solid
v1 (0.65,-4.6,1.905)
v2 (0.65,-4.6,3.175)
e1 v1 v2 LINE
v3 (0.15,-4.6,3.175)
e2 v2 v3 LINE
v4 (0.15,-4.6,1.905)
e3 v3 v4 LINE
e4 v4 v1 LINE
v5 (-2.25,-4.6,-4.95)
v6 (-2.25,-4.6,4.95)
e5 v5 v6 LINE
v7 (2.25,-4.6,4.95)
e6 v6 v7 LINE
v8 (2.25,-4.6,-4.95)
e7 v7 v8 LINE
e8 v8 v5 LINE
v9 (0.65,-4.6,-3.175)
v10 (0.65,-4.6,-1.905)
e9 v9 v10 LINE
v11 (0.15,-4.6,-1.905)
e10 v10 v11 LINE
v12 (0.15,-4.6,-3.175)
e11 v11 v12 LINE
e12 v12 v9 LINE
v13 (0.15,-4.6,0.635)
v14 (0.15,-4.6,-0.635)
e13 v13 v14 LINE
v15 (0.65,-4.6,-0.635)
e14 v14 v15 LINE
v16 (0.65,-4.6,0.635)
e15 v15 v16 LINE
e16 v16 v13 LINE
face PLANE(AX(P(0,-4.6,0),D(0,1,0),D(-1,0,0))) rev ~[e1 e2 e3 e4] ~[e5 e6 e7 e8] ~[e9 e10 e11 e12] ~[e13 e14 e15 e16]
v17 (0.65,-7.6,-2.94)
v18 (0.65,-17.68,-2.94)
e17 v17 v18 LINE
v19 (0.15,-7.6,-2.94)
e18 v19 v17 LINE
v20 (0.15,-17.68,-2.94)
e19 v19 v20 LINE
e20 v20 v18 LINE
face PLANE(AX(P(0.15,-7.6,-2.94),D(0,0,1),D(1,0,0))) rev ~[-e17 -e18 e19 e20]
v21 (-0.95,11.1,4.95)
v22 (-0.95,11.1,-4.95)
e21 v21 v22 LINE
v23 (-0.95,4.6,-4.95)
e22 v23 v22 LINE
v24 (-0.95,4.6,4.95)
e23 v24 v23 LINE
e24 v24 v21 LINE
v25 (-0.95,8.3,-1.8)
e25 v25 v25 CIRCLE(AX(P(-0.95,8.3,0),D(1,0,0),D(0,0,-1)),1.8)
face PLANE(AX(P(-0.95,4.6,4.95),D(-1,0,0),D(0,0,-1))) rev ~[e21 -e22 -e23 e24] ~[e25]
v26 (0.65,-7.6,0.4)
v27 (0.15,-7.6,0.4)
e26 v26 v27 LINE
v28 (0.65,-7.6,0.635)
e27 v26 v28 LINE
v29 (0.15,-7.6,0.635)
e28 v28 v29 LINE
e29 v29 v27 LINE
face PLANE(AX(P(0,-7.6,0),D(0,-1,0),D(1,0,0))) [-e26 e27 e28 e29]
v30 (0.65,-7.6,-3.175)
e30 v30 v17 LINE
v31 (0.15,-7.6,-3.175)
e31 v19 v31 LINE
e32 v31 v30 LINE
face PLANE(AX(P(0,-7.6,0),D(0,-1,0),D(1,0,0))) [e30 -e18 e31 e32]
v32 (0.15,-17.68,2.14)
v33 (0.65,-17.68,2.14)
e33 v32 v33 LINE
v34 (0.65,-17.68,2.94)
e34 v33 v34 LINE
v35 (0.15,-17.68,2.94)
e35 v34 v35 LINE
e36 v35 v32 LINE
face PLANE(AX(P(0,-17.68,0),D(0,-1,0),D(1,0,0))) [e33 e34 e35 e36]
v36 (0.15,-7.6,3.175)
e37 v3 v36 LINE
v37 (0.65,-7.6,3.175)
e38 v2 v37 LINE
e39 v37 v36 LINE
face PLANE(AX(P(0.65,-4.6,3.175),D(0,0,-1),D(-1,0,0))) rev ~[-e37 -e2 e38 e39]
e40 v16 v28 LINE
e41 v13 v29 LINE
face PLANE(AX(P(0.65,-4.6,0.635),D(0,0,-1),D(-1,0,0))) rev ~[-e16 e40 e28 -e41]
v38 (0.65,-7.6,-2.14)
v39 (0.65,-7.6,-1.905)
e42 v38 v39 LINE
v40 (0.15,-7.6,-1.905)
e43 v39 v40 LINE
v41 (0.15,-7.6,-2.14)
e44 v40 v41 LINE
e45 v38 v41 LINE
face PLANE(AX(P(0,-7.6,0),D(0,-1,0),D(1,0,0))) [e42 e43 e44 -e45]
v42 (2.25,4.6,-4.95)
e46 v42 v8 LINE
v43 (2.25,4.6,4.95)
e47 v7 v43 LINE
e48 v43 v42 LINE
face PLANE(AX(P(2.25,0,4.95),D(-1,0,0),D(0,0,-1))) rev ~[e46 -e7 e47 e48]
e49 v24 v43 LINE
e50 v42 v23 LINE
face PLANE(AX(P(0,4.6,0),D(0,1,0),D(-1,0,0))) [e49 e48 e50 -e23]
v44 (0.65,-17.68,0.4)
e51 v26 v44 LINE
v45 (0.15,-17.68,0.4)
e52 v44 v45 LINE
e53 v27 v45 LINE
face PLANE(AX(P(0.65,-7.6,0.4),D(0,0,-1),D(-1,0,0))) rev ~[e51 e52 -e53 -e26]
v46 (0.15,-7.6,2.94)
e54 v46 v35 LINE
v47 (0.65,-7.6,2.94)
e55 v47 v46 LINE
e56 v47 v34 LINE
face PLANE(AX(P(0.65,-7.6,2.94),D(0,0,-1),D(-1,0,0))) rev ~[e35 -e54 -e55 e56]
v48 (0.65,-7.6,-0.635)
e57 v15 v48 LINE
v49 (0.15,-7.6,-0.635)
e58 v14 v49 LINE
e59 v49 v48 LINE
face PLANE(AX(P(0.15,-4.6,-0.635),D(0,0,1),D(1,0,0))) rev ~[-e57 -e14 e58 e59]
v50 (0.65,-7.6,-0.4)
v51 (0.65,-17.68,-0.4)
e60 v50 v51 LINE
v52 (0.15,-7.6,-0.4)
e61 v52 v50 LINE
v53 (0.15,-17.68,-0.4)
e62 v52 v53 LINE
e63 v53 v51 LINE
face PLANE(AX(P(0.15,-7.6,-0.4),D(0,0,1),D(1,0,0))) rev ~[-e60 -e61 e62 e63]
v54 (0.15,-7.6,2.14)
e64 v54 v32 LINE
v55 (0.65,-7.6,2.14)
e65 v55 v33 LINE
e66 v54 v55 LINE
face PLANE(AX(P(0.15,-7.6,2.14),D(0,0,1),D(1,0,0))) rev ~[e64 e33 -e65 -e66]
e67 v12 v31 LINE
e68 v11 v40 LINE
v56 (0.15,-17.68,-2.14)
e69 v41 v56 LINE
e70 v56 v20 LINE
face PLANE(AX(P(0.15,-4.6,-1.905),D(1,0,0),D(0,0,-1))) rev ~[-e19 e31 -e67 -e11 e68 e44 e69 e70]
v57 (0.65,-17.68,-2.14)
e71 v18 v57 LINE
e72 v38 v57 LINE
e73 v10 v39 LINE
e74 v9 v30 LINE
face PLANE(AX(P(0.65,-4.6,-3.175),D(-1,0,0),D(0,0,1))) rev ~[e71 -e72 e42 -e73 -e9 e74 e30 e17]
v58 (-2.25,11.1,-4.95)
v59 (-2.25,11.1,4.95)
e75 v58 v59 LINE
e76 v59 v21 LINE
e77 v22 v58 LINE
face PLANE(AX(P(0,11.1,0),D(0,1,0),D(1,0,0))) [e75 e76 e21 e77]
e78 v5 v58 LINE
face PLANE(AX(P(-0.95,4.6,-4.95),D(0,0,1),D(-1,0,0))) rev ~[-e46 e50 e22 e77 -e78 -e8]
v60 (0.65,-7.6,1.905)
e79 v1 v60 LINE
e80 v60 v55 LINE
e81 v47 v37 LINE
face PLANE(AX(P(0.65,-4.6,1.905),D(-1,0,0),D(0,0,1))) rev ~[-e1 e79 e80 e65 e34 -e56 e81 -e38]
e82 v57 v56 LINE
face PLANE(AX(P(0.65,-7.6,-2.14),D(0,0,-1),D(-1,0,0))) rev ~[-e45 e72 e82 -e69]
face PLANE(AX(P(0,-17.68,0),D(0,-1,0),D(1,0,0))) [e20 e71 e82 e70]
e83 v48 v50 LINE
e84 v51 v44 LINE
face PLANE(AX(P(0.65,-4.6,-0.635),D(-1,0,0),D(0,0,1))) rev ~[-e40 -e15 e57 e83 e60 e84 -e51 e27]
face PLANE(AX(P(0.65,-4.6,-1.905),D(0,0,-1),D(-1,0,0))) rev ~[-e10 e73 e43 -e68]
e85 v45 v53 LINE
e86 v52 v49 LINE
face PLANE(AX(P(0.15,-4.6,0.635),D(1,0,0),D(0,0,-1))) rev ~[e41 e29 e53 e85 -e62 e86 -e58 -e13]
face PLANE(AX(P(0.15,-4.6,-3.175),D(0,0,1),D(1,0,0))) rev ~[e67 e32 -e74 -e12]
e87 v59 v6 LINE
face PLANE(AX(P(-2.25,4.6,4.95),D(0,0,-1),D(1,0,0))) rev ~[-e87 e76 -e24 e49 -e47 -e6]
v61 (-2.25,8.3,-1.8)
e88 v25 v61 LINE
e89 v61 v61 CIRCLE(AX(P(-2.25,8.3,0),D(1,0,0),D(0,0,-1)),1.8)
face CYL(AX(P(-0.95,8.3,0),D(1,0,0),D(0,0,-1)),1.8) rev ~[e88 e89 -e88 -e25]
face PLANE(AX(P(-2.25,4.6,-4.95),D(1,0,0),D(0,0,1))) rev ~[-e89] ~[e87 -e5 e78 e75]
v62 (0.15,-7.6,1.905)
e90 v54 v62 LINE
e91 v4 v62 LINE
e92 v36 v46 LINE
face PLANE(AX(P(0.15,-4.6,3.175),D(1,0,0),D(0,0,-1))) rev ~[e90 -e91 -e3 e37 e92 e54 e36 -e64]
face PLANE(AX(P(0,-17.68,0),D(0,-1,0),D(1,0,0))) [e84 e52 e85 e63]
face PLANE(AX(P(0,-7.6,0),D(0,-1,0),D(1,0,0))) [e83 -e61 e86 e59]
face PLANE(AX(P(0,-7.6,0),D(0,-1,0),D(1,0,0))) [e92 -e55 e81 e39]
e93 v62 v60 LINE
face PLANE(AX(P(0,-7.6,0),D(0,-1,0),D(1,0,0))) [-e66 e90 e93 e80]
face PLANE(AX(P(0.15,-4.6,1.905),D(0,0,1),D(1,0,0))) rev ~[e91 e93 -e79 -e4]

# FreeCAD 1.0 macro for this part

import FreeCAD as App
import Part
import Sketcher
Q = App.Units.Quantity


def add_polygon(sketch, points):
    """Adds a closed chain of lines whose ends are joined by coincident constraints."""
    first, n = sketch.GeometryCount, len(points)
    for a, b in zip(points, points[1:] + points[:1]):
        sketch.addGeometry(Part.LineSegment(App.Vector(*a, 0), App.Vector(*b, 0)), False)
    for i in range(n):
        sketch.addConstraint(Sketcher.Constraint("Coincident", first + i, 2, first + (i + 1) % n, 1))

doc = App.newDocument("Part")
body = doc.addObject("PartDesign::Body", "Body")

# Sketch on XZ plane
sketch1 = body.newObject("Sketcher::SketchObject", "Sketch")
sketch1.AttachmentSupport = (doc.getObject("XZ_Plane"), [""])
sketch1.MapMode = "FlatFace"
add_polygon(sketch1, [(-2.2, -5), (-2.2, 5), (2.2, 5), (2.2, -5)])  # lines 0-3
sketch1.addConstraint([
    Sketcher.Constraint("Vertical", 0),
    Sketcher.Constraint("Horizontal", 1),
    Sketcher.Constraint("Vertical", 2),
    Sketcher.Constraint("Horizontal", 3),
    Sketcher.Constraint("Symmetric", 0, 2, 2, 2, -1, 1),
    Sketcher.Constraint("DistanceX", 1, 1, 1, 2, Q("4.5 mm")),
    Sketcher.Constraint("DistanceY", 0, 1, 0, 2, Q("9.9 mm")),
])
pad1 = body.newObject("PartDesign::Pad", "Pad")
pad1.Profile = sketch1
pad1.Length = 9.2
pad1.Midplane = True

# Sketch on XZ plane
sketch2 = body.newObject("Sketcher::SketchObject", "Sketch001")
sketch2.AttachmentSupport = (doc.getObject("XZ_Plane"), [""])
sketch2.MapMode = "FlatFace"
sketch2.AttachmentOffset = App.Placement(App.Vector(0, 0, -4.6), App.Rotation())
add_polygon(sketch2, [(-0.9, 5), (-0.9, -5), (-2.2, -5), (-2.2, 5)])  # lines 0-3
sketch2.addConstraint([
    Sketcher.Constraint("Vertical", 0),
    Sketcher.Constraint("Horizontal", 1),
    Sketcher.Constraint("Vertical", 2),
    Sketcher.Constraint("Horizontal", 3),
    Sketcher.Constraint("DistanceX", 1, 2, 1, 1, Q("1.3 mm")),
    Sketcher.Constraint("DistanceY", 0, 2, 0, 1, Q("9.9 mm")),
    Sketcher.Constraint("DistanceX", 0, 2, -1, 1, Q("0.95 mm")),
    Sketcher.Constraint("DistanceY", 0, 2, -1, 1, Q("4.95 mm")),
])
pad2 = body.newObject("PartDesign::Pad", "Pad001")
pad2.Profile = sketch2
pad2.Length = 6.5
pad2.Reversed = True

# Sketch on YZ plane
sketch3 = body.newObject("Sketcher::SketchObject", "Sketch002")
sketch3.AttachmentSupport = (doc.getObject("YZ_Plane"), [""])
sketch3.MapMode = "FlatFace"
sketch3.AttachmentOffset = App.Placement(App.Vector(0, 0, -0.95), App.Rotation())
sketch3.addGeometry(Part.Circle(App.Vector(8.3, 0, 0), App.Vector(0, 0, 1), 1.8), False)
sketch3.addConstraint([
    Sketcher.Constraint("PointOnObject", 0, 3, -1),
    Sketcher.Constraint("Diameter", 0, Q("3.6 mm")),
    Sketcher.Constraint("DistanceX", -1, 1, 0, 3, Q("8.3 mm")),
])
pocket1 = body.newObject("PartDesign::Pocket", "Pocket")
pocket1.Profile = sketch3
pocket1.Length = 6.5

# Sketch on XZ plane
sketch4 = body.newObject("Sketcher::SketchObject", "Sketch003")
sketch4.AttachmentSupport = (doc.getObject("XZ_Plane"), [""])
sketch4.MapMode = "FlatFace"
sketch4.AttachmentOffset = App.Placement(App.Vector(0, 0, 4.6), App.Rotation())
add_polygon(sketch4, [(0.7, 1.9), (0.7, 3.2), (0.1, 3.2), (0.1, 1.9)])  # lines 0-3
add_polygon(sketch4, [(0.7, -0.6), (0.7, 0.6), (0.1, 0.6), (0.1, -0.6)])  # lines 4-7
add_polygon(sketch4, [(0.7, -3.2), (0.7, -1.9), (0.1, -1.9), (0.1, -3.2)])  # lines 8-11
sketch4.addConstraint([
    Sketcher.Constraint("Vertical", 0),
    Sketcher.Constraint("Horizontal", 1),
    Sketcher.Constraint("Vertical", 2),
    Sketcher.Constraint("Horizontal", 3),
    Sketcher.Constraint("Vertical", 4),
    Sketcher.Constraint("Horizontal", 5),
    Sketcher.Constraint("Vertical", 6),
    Sketcher.Constraint("Horizontal", 7),
    Sketcher.Constraint("Vertical", 8),
    Sketcher.Constraint("Horizontal", 9),
    Sketcher.Constraint("Vertical", 10),
    Sketcher.Constraint("Horizontal", 11),
    Sketcher.Constraint("Symmetric", 3, 2, 8, 2, -1),
    Sketcher.Constraint("Symmetric", 1, 2, 10, 2, -1),
    Sketcher.Constraint("Vertical", 3, 2, 4, 2),
    Sketcher.Constraint("Vertical", 2, 2, 5, 2),
    Sketcher.Constraint("Equal", 2, 4),
    Sketcher.Constraint("DistanceX", 1, 2, 1, 1, Q("0.5 mm")),
    Sketcher.Constraint("DistanceY", 0, 1, 0, 2, Q("1.27 mm")),
    Sketcher.Constraint("DistanceY", 4, 2, 3, 2, Q("1.27 mm")),
    Sketcher.Constraint("DistanceY", 8, 2, 7, 2, Q("1.27 mm")),
    Sketcher.Constraint("DistanceX", -1, 1, 0, 2, Q("0.65 mm")),
])
pad3 = body.newObject("PartDesign::Pad", "Pad002")
pad3.Profile = sketch4
pad3.Length = 3

# Sketch on XZ plane
sketch5 = body.newObject("Sketcher::SketchObject", "Sketch004")
sketch5.AttachmentSupport = (doc.getObject("XZ_Plane"), [""])
sketch5.MapMode = "FlatFace"
sketch5.AttachmentOffset = App.Placement(App.Vector(0, 0, 7.6), App.Rotation())
add_polygon(sketch5, [(0.7, 2.9), (0.1, 2.9), (0.1, 2.1), (0.7, 2.1)])  # lines 0-3
add_polygon(sketch5, [(0.7, 0.4), (0.1, 0.4), (0.1, -0.4), (0.7, -0.4)])  # lines 4-7
add_polygon(sketch5, [(0.7, -2.9), (0.7, -2.1), (0.1, -2.1), (0.1, -2.9)])  # lines 8-11
sketch5.addConstraint([
    Sketcher.Constraint("Horizontal", 0),
    Sketcher.Constraint("Vertical", 1),
    Sketcher.Constraint("Horizontal", 2),
    Sketcher.Constraint("Vertical", 3),
    Sketcher.Constraint("Horizontal", 4),
    Sketcher.Constraint("Vertical", 5),
    Sketcher.Constraint("Horizontal", 6),
    Sketcher.Constraint("Vertical", 7),
    Sketcher.Constraint("Vertical", 8),
    Sketcher.Constraint("Horizontal", 9),
    Sketcher.Constraint("Vertical", 10),
    Sketcher.Constraint("Horizontal", 11),
    Sketcher.Constraint("Symmetric", 2, 2, 8, 2, -1),
    Sketcher.Constraint("Symmetric", 0, 2, 10, 2, -1),
    Sketcher.Constraint("Vertical", 1, 2, 4, 2),
    Sketcher.Constraint("Vertical", 3, 2, 6, 2),
    Sketcher.Constraint("Equal", 3, 5),
    Sketcher.Constraint("DistanceY", 1, 2, 1, 1, Q("0.8 mm")),
    Sketcher.Constraint("DistanceX", 0, 2, 0, 1, Q("0.5 mm")),
    Sketcher.Constraint("DistanceY", -1, 1, 4, 2, Q("0.4 mm")),
    Sketcher.Constraint("DistanceX", -1, 1, 0, 2, Q("0.15 mm")),
    Sketcher.Constraint("DistanceY", -1, 1, 0, 2, Q("2.94 mm")),
])
pad4 = body.newObject("PartDesign::Pad", "Pad003")
pad4.Profile = sketch5
pad4.Length = 10.08

doc.recompute()
